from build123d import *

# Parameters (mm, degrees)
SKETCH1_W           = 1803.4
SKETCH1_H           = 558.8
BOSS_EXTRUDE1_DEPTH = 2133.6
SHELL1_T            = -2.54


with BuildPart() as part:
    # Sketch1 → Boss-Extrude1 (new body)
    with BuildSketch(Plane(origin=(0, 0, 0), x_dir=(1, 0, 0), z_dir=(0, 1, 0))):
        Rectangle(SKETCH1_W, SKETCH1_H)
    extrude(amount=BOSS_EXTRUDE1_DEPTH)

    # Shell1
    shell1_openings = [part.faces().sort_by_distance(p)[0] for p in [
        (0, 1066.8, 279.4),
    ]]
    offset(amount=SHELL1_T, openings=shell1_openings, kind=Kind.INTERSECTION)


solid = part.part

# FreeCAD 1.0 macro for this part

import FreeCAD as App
import Part
import Sketcher

V = App.Vector
Q = App.Units.Quantity


def faces_at(feature, points):
    """Names of the faces that lie closest to the given points."""
    faces = feature.Shape.Faces
    near = lambda p: min(range(len(faces)), key=lambda i: faces[i].distToShape(Part.Vertex(*p))[0])
    return sorted({f"Face{near(p) + 1}" for p in points})

doc = App.newDocument("Part")
body = doc.addObject("PartDesign::Body", "Body")

sketch1 = doc.addObject("Sketcher::SketchObject", "Sketch")
body.addObject(sketch1)
sketch1.AttachmentSupport = (doc.XZ_Plane, [""])
sketch1.MapMode = "FlatFace"
sketch1.addGeometry([
    Part.LineSegment(V(-902, -279, 0), V(-902, 279, 0)),
    Part.LineSegment(V(-902, 279, 0), V(902, 279, 0)),
    Part.LineSegment(V(902, 279, 0), V(902, -279, 0)),
    Part.LineSegment(V(902, -279, 0), V(-902, -279, 0)),
], False)
sketch1.addConstraint([
    Sketcher.Constraint("Coincident", 0, 2, 1, 1),
    Sketcher.Constraint("Coincident", 1, 2, 2, 1),
    Sketcher.Constraint("Coincident", 2, 2, 3, 1),
    Sketcher.Constraint("Coincident", 3, 2, 0, 1),
    Sketcher.Constraint("Vertical", 0),
    Sketcher.Constraint("Horizontal", 1),
    Sketcher.Constraint("Vertical", 2),
    Sketcher.Constraint("Horizontal", 3),
    Sketcher.Constraint("Symmetric", 0, 2, 2, 2, -1, 1),
    Sketcher.Constraint("DistanceX", 1, 1, 1, 2, Q("71 in")),
    Sketcher.Constraint("DistanceY", 0, 1, 0, 2, Q("22 in")),
])
pad1 = doc.addObject("PartDesign::Pad", "Pad")
body.addObject(pad1)
pad1.Profile = sketch1
pad1.Length = Q("84 in")
pad1.Reversed = True
doc.recompute()

thickness = doc.addObject("PartDesign::Thickness", "Thickness")
body.addObject(thickness)
thickness.Base = (pad1, faces_at(pad1, [(0, 1066.8, 279.4)]))
thickness.Value = Q("0.1 in")
thickness.Reversed = True
thickness.Join = "Intersection"

doc.recompute()
